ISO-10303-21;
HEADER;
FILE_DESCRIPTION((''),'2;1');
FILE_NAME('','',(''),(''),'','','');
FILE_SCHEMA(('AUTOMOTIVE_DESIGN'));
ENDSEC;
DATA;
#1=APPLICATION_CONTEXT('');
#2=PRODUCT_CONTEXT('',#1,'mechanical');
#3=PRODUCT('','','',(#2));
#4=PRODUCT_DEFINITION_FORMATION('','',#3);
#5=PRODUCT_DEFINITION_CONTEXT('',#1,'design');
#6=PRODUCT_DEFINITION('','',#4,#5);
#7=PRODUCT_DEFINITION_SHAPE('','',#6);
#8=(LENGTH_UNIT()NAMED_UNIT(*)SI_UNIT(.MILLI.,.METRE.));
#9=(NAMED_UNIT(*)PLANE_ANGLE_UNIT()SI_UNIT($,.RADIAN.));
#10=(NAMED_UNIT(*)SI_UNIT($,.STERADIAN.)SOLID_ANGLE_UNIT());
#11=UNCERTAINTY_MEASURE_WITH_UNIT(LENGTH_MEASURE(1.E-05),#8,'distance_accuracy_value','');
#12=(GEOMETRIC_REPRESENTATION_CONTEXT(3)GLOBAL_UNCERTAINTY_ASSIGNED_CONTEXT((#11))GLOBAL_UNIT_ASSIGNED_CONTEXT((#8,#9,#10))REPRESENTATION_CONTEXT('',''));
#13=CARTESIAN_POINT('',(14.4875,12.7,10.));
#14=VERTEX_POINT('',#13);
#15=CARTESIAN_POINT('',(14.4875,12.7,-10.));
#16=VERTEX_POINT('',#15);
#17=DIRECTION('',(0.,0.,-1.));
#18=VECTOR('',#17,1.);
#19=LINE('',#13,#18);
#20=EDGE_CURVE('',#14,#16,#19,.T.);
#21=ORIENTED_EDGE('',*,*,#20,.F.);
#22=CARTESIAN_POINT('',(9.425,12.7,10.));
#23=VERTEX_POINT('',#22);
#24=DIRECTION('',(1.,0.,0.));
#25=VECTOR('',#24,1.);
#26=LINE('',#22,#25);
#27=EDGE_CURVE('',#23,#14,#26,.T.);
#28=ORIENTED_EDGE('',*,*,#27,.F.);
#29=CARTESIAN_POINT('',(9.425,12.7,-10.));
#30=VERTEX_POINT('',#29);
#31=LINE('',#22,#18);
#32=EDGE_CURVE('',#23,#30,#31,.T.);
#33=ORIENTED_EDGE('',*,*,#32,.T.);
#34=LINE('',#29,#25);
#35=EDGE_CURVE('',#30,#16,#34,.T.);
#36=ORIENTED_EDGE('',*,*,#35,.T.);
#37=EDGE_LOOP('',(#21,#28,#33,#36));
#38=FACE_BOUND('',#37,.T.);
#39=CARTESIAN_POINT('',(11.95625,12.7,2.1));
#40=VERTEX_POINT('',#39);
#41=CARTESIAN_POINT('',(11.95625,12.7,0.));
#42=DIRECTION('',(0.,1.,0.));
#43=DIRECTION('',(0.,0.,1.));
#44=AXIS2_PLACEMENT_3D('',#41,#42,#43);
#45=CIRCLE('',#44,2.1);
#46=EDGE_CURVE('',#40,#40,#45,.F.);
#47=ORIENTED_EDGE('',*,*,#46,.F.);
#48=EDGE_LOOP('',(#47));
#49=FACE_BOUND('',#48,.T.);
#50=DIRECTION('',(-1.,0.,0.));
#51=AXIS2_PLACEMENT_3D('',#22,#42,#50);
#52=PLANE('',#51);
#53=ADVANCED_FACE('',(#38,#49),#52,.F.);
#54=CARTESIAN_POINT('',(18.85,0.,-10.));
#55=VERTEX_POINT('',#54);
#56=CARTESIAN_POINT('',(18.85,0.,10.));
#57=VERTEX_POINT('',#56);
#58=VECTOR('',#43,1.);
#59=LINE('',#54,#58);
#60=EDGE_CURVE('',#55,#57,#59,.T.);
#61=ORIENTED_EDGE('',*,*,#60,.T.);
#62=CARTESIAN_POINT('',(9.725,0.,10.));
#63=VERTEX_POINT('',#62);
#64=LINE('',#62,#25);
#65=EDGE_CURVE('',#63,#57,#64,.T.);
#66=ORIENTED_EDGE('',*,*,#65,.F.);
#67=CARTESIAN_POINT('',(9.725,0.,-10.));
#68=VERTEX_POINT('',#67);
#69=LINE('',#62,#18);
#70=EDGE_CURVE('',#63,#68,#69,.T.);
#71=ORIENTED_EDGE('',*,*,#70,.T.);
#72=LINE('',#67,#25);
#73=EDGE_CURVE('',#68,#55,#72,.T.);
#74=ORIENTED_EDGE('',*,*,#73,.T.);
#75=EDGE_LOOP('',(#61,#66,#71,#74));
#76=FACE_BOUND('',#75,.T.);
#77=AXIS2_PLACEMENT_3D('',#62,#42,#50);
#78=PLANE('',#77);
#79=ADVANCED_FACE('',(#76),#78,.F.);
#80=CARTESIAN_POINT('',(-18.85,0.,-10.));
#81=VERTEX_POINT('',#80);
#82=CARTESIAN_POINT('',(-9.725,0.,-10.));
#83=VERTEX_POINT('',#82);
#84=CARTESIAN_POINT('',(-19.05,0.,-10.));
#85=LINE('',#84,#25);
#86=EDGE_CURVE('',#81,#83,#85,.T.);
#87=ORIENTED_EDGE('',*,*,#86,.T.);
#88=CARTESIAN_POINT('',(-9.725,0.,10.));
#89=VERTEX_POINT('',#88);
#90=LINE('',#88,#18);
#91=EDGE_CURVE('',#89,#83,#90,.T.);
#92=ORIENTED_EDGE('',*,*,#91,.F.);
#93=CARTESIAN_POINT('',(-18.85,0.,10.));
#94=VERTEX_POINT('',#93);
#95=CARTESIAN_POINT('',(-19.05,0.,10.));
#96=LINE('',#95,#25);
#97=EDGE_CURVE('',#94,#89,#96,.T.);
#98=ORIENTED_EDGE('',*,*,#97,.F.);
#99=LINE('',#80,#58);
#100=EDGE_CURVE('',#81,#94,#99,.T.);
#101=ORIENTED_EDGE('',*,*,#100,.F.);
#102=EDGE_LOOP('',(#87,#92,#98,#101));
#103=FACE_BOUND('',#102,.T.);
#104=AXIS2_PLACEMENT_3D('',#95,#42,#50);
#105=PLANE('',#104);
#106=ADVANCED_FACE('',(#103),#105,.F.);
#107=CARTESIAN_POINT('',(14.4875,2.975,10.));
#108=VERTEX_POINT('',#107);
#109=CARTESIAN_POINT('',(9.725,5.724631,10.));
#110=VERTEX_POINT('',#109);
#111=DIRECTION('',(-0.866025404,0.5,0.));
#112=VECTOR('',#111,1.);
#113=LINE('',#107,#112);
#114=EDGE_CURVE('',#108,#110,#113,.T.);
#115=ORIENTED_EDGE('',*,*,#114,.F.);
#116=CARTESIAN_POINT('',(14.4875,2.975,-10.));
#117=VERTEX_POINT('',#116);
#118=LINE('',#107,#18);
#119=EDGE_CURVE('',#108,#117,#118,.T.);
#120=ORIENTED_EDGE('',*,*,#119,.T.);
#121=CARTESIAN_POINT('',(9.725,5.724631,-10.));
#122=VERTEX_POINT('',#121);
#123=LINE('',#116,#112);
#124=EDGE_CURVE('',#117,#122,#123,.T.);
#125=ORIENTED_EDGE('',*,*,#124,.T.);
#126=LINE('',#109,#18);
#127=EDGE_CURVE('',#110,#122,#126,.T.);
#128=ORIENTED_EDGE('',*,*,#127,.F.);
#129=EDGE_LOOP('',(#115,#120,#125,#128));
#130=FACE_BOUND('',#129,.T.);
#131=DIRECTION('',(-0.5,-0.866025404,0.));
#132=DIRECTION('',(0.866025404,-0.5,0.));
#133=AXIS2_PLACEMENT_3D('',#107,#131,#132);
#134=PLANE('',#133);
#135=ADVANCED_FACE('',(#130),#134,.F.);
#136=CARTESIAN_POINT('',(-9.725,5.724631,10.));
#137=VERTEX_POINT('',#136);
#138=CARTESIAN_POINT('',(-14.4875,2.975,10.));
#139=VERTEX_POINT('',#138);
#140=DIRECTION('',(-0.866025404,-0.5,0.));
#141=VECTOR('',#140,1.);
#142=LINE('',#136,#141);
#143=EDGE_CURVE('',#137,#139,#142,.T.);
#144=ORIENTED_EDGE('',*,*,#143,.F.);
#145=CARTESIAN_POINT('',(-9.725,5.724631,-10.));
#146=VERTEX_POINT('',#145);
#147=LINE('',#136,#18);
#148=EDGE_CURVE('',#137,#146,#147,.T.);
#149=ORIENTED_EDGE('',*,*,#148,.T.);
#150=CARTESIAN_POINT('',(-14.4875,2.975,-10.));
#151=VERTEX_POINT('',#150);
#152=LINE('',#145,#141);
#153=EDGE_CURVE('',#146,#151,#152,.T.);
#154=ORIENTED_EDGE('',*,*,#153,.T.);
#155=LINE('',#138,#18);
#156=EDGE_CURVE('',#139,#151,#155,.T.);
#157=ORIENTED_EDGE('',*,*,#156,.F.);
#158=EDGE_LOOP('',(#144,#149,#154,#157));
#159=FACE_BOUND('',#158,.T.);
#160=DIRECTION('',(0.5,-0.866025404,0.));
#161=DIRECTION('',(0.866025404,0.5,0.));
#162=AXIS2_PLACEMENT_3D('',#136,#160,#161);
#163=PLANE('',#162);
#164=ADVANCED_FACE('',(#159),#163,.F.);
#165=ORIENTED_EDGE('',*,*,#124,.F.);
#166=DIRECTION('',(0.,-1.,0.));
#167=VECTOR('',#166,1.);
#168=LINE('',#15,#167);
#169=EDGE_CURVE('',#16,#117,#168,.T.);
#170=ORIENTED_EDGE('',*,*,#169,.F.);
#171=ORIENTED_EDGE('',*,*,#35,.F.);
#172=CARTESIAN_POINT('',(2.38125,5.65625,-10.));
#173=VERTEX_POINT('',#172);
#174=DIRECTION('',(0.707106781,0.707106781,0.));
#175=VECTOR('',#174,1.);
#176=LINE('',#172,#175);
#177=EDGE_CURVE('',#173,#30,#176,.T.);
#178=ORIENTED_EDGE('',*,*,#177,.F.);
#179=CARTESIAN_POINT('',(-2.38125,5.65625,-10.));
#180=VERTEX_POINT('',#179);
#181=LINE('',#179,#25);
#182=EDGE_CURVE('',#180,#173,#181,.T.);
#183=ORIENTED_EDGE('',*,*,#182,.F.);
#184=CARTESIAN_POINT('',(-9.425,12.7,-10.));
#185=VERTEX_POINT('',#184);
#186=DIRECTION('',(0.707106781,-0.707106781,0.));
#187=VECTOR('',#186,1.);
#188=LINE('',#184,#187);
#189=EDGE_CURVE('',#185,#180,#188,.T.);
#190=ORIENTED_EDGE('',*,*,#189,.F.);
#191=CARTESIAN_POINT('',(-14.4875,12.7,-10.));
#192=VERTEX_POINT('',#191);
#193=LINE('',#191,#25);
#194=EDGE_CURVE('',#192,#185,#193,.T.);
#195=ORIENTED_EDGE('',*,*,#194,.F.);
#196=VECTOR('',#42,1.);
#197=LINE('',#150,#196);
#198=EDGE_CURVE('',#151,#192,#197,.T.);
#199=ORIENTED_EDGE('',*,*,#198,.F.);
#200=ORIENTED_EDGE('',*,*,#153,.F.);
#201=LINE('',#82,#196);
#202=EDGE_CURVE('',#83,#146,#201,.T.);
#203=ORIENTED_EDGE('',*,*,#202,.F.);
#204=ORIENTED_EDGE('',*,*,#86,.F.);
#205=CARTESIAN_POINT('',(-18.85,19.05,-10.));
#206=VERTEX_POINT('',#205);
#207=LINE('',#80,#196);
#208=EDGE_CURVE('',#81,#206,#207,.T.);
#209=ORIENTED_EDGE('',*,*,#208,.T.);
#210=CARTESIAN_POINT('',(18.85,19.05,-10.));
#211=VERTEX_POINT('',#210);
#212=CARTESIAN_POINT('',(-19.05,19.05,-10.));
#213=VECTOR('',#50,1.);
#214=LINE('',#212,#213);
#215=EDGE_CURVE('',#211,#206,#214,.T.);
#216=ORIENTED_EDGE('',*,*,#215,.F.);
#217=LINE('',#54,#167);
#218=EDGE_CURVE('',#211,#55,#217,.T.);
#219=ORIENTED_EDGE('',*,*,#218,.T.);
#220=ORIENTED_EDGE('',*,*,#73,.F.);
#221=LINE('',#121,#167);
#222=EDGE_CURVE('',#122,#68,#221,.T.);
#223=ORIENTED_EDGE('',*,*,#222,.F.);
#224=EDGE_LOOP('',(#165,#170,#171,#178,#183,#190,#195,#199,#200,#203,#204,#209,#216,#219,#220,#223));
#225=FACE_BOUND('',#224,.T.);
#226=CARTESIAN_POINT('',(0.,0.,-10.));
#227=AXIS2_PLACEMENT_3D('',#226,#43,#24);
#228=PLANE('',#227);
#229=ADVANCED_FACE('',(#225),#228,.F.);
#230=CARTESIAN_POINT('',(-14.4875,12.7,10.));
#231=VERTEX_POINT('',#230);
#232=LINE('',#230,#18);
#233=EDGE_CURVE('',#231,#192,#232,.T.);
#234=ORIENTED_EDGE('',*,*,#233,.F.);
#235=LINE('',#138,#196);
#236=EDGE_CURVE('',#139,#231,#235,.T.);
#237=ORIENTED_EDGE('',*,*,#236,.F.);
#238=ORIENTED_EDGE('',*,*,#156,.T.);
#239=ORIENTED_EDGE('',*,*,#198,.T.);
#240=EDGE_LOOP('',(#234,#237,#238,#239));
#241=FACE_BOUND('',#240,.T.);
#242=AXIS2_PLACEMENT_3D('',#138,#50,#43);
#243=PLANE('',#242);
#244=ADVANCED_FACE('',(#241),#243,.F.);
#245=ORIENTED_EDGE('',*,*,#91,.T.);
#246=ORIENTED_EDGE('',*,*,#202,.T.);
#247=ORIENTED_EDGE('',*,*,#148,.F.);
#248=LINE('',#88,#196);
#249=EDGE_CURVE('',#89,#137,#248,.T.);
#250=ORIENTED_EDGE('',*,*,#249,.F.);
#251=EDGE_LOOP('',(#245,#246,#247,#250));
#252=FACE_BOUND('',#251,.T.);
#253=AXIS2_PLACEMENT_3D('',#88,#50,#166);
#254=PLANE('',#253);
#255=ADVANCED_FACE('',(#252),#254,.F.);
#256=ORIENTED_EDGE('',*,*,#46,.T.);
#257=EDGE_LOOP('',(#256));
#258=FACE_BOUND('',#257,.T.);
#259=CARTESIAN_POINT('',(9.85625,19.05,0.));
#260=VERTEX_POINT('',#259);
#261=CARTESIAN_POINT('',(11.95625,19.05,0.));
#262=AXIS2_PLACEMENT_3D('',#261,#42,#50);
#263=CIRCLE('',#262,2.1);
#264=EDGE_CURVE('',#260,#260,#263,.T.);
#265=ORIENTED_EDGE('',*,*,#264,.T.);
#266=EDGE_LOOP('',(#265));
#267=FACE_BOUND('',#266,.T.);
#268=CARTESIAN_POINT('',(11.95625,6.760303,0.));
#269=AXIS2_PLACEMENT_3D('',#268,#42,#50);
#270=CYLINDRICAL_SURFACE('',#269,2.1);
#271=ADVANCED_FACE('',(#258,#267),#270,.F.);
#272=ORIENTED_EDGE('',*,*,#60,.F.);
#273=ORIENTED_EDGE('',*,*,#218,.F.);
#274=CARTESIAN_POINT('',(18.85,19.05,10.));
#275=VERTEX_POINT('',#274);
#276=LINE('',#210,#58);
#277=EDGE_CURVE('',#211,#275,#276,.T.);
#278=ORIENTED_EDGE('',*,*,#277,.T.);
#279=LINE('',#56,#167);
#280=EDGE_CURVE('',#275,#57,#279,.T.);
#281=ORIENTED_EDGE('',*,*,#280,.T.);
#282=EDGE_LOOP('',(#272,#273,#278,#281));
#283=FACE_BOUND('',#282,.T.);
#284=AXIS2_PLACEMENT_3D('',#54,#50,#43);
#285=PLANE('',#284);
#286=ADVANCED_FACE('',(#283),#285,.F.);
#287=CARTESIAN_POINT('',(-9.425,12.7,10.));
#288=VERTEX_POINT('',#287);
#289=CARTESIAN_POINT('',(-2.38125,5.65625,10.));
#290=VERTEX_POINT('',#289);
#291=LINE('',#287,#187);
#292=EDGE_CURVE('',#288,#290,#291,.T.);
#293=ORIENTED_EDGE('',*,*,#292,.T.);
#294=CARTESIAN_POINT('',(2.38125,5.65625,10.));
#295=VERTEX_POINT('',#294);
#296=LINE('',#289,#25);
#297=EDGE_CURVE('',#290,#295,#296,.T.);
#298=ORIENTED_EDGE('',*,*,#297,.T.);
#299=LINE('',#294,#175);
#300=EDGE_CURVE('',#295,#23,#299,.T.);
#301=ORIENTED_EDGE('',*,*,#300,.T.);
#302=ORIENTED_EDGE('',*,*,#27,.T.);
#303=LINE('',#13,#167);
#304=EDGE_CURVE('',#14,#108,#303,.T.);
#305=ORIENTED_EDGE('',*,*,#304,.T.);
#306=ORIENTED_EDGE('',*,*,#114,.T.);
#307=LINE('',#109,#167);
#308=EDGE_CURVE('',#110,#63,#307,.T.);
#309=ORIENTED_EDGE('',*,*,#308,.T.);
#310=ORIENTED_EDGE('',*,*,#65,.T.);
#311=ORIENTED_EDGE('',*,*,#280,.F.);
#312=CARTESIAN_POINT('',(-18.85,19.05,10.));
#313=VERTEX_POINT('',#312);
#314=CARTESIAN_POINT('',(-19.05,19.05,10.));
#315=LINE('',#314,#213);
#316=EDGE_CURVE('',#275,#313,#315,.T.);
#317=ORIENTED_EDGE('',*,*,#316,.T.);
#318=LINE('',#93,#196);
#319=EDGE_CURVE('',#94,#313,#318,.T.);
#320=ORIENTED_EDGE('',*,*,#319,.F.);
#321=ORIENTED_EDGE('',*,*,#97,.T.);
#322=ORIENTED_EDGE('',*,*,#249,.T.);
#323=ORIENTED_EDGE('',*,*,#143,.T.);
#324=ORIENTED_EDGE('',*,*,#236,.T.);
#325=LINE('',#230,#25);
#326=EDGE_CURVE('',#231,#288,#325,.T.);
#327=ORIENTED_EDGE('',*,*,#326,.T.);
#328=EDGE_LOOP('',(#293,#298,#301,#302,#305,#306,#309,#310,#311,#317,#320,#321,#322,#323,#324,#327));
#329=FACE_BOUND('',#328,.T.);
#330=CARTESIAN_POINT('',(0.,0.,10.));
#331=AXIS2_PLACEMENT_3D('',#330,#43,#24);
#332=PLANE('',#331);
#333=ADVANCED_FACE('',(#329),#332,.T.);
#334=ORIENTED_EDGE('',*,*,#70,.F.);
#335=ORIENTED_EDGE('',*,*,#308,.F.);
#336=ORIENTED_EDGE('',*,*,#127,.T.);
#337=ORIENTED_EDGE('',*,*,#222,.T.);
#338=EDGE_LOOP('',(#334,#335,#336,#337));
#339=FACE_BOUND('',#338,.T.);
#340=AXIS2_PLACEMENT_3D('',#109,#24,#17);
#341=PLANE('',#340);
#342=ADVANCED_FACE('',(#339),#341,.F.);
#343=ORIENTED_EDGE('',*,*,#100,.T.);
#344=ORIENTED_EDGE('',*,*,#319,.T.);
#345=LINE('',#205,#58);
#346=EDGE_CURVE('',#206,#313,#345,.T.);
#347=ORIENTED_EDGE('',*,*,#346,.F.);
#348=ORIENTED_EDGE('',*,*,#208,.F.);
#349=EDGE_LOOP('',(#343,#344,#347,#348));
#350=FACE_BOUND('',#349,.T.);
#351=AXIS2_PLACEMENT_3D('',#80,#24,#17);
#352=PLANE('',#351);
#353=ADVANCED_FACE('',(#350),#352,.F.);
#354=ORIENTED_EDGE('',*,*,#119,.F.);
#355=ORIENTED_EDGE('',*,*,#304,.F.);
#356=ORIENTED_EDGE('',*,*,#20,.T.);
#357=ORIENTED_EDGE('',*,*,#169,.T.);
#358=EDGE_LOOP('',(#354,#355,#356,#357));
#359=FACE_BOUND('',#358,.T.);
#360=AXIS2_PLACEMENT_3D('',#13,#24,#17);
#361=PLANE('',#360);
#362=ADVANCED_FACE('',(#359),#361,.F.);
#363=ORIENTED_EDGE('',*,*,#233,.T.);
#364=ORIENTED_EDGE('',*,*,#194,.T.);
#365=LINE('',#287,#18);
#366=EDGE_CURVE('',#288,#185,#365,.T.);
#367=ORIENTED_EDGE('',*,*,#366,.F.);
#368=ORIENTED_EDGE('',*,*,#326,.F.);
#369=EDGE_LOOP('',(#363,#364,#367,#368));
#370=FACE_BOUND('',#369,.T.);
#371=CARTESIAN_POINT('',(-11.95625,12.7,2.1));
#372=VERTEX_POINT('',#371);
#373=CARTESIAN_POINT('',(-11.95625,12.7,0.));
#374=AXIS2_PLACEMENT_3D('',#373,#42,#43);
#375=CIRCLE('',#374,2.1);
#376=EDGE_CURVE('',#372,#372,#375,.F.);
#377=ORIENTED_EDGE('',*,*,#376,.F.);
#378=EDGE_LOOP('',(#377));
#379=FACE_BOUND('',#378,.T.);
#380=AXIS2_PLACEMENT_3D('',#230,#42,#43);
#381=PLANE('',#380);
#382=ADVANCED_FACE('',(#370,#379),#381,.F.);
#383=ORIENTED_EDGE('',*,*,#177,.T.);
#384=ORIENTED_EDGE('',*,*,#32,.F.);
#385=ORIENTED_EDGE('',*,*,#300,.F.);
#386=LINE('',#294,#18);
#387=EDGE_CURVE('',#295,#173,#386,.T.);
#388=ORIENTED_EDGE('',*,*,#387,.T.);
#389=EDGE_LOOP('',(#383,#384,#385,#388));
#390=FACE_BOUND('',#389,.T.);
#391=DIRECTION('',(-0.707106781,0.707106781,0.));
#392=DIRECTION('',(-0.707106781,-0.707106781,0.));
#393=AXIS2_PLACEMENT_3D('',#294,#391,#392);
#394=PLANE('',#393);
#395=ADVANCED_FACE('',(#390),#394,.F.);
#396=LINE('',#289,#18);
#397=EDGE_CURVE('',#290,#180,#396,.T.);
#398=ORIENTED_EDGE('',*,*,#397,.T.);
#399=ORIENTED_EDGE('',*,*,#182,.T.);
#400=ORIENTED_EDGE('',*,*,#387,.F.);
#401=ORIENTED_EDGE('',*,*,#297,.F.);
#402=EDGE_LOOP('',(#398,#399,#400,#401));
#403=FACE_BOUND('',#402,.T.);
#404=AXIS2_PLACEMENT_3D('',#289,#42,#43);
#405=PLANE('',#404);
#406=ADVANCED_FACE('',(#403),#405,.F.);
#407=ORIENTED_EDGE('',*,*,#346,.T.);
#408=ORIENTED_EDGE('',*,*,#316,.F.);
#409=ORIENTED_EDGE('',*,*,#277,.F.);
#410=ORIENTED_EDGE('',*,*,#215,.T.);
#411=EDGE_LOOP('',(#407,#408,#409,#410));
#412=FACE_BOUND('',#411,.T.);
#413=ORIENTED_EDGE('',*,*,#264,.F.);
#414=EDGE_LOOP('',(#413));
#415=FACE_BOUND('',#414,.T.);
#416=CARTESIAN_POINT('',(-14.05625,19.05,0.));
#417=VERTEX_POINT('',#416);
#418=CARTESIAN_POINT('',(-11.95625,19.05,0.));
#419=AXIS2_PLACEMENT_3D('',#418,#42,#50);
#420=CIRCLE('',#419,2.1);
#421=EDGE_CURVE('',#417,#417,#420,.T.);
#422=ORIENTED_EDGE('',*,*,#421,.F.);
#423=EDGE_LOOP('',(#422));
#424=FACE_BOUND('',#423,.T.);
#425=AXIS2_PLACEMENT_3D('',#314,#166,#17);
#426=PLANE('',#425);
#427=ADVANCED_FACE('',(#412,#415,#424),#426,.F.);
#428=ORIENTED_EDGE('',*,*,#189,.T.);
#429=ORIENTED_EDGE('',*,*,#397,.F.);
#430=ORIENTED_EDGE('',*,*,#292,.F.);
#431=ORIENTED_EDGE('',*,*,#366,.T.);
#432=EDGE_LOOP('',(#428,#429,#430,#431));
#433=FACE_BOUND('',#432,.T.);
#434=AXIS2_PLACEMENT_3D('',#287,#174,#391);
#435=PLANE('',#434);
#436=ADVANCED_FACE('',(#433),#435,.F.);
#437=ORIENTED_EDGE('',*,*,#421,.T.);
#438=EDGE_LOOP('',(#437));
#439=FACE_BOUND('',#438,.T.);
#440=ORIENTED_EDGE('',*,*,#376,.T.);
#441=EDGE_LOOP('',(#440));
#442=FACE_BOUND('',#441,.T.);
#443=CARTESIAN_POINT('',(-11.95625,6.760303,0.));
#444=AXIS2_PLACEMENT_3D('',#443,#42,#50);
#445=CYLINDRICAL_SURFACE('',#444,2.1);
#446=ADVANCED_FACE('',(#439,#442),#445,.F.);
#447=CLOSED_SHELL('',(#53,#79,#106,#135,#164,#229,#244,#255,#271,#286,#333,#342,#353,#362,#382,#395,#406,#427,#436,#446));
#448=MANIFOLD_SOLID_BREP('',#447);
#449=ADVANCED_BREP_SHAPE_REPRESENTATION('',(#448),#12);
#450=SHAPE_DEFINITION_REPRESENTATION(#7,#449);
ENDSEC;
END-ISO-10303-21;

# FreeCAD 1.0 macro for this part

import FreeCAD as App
import Part
import Sketcher
Q = App.Units.Quantity


def add_polygon(sketch, points):
    """Adds a closed chain of lines whose ends are joined by coincident constraints."""
    first, n = sketch.GeometryCount, len(points)
    for a, b in zip(points, points[1:] + points[:1]):
        sketch.addGeometry(Part.LineSegment(App.Vector(*a, 0), App.Vector(*b, 0)), False)
    for i in range(n):
        sketch.addConstraint(Sketcher.Constraint("Coincident", first + i, 2, first + (i + 1) % n, 1))

doc = App.newDocument("Part")
body = doc.addObject("PartDesign::Body", "Body")

# Sketch on XY plane
sketch1 = body.newObject("Sketcher::SketchObject", "Sketch")
sketch1.AttachmentSupport = (doc.getObject("XY_Plane"), [""])
sketch1.MapMode = "FlatFace"
add_polygon(sketch1, [(9.7, 0), (19.1, 0), (19.1, 19.1), (-19.1, 19.1), (-19.1, 0), (-9.7, 0), (-9.7, 5.7), (-14.5, 3), (-14.5, 12.7), (-9.4, 12.7), (-2.4, 5.7), (2.4, 5.7), (9.4, 12.7), (14.5, 12.7), (14.5, 3), (9.7, 5.7)])  # lines 0-15
sketch1.addConstraint([
    Sketcher.Constraint("Horizontal", 0),
    Sketcher.Constraint("Vertical", 1),
    Sketcher.Constraint("Horizontal", 2),
    Sketcher.Constraint("Vertical", 3),
    Sketcher.Constraint("Horizontal", 4),
    Sketcher.Constraint("Vertical", 5),
    Sketcher.Constraint("Vertical", 7),
    Sketcher.Constraint("Horizontal", 8),
    Sketcher.Constraint("Horizontal", 10),
    Sketcher.Constraint("Horizontal", 12),
    Sketcher.Constraint("Vertical", 13),
    Sketcher.Constraint("Vertical", 15),
    Sketcher.Constraint("Symmetric", 0, 2, 3, 2, -1, 1),
    Sketcher.Constraint("Symmetric", 8, 2, 11, 2, -2),
    Sketcher.Constraint("Symmetric", 6, 2, 13, 2, -2),
    Sketcher.Constraint("Symmetric", 5, 2, 14, 2, -2),
    Sketcher.Constraint("PointOnObject", 0, 2, -1),
    Sketcher.Constraint("Perpendicular", 9, 11),
    Sketcher.Constraint("Equal", 9, 11),
    Sketcher.Constraint("DistanceX", 2, 2, 2, 1, Q("1.5 in")),
    Sketcher.Constraint("Angle", 6, Q("-150 deg")),
    Sketcher.Constraint("DistanceY", 1, 1, 1, 2, Q("0.75 in")),
    Sketcher.Constraint("DistanceY", -1, 1, 7, 2, Q("0.5 in")),
    Sketcher.Constraint("DistanceX", 10, 1, 10, 2, Q("0.1875 in")),
    Sketcher.Constraint("DistanceX", 6, 2, 5, 2, Q("0.1875 in")),
    Sketcher.Constraint("DistanceX", 0, 1, 0, 2, 9.325),
    Sketcher.Constraint("DistanceX", 8, 1, 8, 2, 5.0625),
    Sketcher.Constraint("DistanceY", 7, 1, 7, 2, 9.725),
])
pad1 = body.newObject("PartDesign::Pad", "Pad")
pad1.Profile = sketch1
pad1.Length = 20
pad1.Midplane = True

# Sketch on XZ plane
sketch2 = body.newObject("Sketcher::SketchObject", "Sketch001")
sketch2.AttachmentSupport = (doc.getObject("XZ_Plane"), [""])
sketch2.MapMode = "FlatFace"
sketch2.AttachmentOffset = App.Placement(App.Vector(0, 0, -0.75 * 25.4), App.Rotation())
sketch2.addGeometry([
    Part.Circle(App.Vector(-12, 0, 0), App.Vector(0, 0, 1), 2.1),
    Part.Circle(App.Vector(12, 0, 0), App.Vector(0, 0, 1), 2.1),
], False)
sketch2.addConstraint([
    Sketcher.Constraint("Equal", 0, 1),
    Sketcher.Constraint("Symmetric", 0, 3, 1, 3, -1, 1),
    Sketcher.Constraint("PointOnObject", 0, 3, -1),
    Sketcher.Constraint("Diameter", 0, 4.2),
    Sketcher.Constraint("DistanceX", 0, 3, 1, 3, 23.9125),
])
pocket1 = body.newObject("PartDesign::Pocket", "Pocket")
pocket1.Profile = sketch2
pocket1.Length = Q("0.25 in")
pocket1.Reversed = True

# Sketch on XY plane
sketch3 = body.newObject("Sketcher::SketchObject", "Sketch002")
sketch3.AttachmentSupport = (doc.getObject("XY_Plane"), [""])
sketch3.MapMode = "FlatFace"
add_polygon(sketch3, [(-29, 19), (-29, 0), (-19, 0), (-19, 19)])  # lines 0-3
add_polygon(sketch3, [(19, 19), (19, 0), (29, 0), (29, 19)])  # lines 4-7
sketch3.addConstraint([
    Sketcher.Constraint("Vertical", 0),
    Sketcher.Constraint("Horizontal", 1),
    Sketcher.Constraint("Vertical", 2),
    Sketcher.Constraint("Horizontal", 3),
    Sketcher.Constraint("Vertical", 4),
    Sketcher.Constraint("Horizontal", 5),
    Sketcher.Constraint("Vertical", 6),
    Sketcher.Constraint("Horizontal", 7),
    Sketcher.Constraint("Symmetric", 1, 2, 4, 2, -1, 1),
    Sketcher.Constraint("Symmetric", 0, 2, 5, 2, -2),
    Sketcher.Constraint("Horizontal", 3, 2, 6, 2),
    Sketcher.Constraint("DistanceY", 0, 2, 0, 1, Q("0.75 in")),
    Sketcher.Constraint("DistanceX", 0, 2, 5, 2, Q("2.25 in")),
    Sketcher.Constraint("DistanceX", 1, 1, 1, 2, 9.725),
])
pocket2 = body.newObject("PartDesign::Pocket", "Pocket001")
pocket2.Profile = sketch3
pocket2.Type = "ThroughAll"
pocket2.Midplane = True

doc.recompute()
